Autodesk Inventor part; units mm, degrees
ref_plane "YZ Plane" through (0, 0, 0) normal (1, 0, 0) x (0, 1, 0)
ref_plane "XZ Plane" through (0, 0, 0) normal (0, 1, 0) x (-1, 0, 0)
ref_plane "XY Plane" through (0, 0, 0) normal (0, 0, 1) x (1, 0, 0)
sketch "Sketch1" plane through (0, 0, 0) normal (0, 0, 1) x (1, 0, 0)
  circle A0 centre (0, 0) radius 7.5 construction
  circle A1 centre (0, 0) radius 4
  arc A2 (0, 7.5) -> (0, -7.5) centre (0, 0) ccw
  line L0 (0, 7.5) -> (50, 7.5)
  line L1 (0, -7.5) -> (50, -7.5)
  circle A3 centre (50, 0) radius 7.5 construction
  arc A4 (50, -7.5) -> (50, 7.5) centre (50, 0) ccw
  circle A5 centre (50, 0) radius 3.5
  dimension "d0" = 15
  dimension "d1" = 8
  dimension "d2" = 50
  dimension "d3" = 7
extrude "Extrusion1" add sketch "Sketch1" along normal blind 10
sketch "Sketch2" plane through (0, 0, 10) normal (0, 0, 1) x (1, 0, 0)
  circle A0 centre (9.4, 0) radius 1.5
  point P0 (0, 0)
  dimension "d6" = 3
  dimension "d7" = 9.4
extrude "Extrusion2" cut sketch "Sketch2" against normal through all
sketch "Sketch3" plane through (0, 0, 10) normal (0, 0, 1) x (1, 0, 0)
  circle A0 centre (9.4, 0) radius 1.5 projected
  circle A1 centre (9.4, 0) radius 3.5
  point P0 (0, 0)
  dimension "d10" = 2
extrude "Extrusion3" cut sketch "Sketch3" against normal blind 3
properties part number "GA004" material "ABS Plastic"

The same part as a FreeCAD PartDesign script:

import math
import FreeCAD as App
import Part
import Sketcher

V = App.Vector
Q = App.Units.Quantity

doc = App.newDocument("Part")
body = doc.addObject("PartDesign::Body", "Body")

sketch1 = body.newObject("Sketcher::SketchObject", "Sketch")
sketch1.AttachmentSupport = (doc.getObject("XY_Plane"), [""])
sketch1.MapMode = "FlatFace"
sketch1.addGeometry(Part.LineSegment(V(50, 7.5, 0), V(0, 7.5, 0)), False)
sketch1.addGeometry(Part.ArcOfCircle(Part.Circle(V(0, 0, 0), V(0, 0, 1), 7.5), math.radians(90), math.radians(270)), False)
sketch1.addGeometry(Part.LineSegment(V(0, -7.5, 0), V(50, -7.5, 0)), False)
sketch1.addGeometry(Part.ArcOfCircle(Part.Circle(V(50, 0, 0), V(0, 0, 1), 7.5), math.radians(-90), math.radians(90)), False)
sketch1.addGeometry(Part.Circle(V(0, 0, 0), V(0, 0, 1), 4), False)
sketch1.addGeometry(Part.Circle(V(50, 0, 0), V(0, 0, 1), 3.5), False)
sketch1.addConstraint(Sketcher.Constraint("Tangent", 0, 2, 1, 1))
sketch1.addConstraint(Sketcher.Constraint("Tangent", 1, 2, 2, 1))
sketch1.addConstraint(Sketcher.Constraint("Tangent", 2, 2, 3, 1))
sketch1.addConstraint(Sketcher.Constraint("Tangent", 3, 2, 0, 1))
sketch1.addConstraint(Sketcher.Constraint("Horizontal", 0))
sketch1.addConstraint(Sketcher.Constraint("Horizontal", 2))
sketch1.addConstraint(Sketcher.Constraint("Coincident", 1, 3, -1, 1))
sketch1.addConstraint(Sketcher.Constraint("Coincident", 4, 3, -1, 1))
sketch1.addConstraint(Sketcher.Constraint("Coincident", 5, 3, 3, 3))
sketch1.addConstraint(Sketcher.Constraint("Diameter", 4, Q("8 mm")))
sketch1.addConstraint(Sketcher.Constraint("Diameter", 5, Q("7 mm")))
sketch1.addConstraint(Sketcher.Constraint("Radius", 1, Q("7.5 mm")))
sketch1.addConstraint(Sketcher.Constraint("DistanceX", 0, 2, 0, 1, Q("50 mm")))
pad1 = body.newObject("PartDesign::Pad", "Pad")
pad1.Profile = sketch1
pad1.Length = 10

sketch2 = body.newObject("Sketcher::SketchObject", "Sketch001")
sketch2.AttachmentSupport = (doc.getObject("XY_Plane"), [""])
sketch2.MapMode = "FlatFace"
sketch2.AttachmentOffset = App.Placement(V(0, 0, 10), App.Rotation())
sketch2.addGeometry(Part.Circle(V(9.4, 0, 0), V(0, 0, 1), 1.5), False)
sketch2.addConstraint(Sketcher.Constraint("PointOnObject", 0, 3, -1))
sketch2.addConstraint(Sketcher.Constraint("Diameter", 0, Q("3 mm")))
sketch2.addConstraint(Sketcher.Constraint("DistanceX", -1, 1, 0, 3, Q("9.4 mm")))
pocket1 = body.newObject("PartDesign::Pocket", "Pocket")
pocket1.Profile = sketch2
pocket1.Type = "ThroughAll"

sketch3 = body.newObject("Sketcher::SketchObject", "Sketch002")
sketch3.AttachmentSupport = (doc.getObject("XY_Plane"), [""])
sketch3.MapMode = "FlatFace"
sketch3.AttachmentOffset = App.Placement(V(0, 0, 10), App.Rotation())
sketch3.addGeometry(Part.Circle(V(9.4, 0, 0), V(0, 0, 1), 3.5), False)
sketch3.addGeometry(Part.Circle(V(9.4, 0, 0), V(0, 0, 1), 1.5), False)
sketch3.addConstraint(Sketcher.Constraint("Coincident", 1, 3, 0, 3))
sketch3.addConstraint(Sketcher.Constraint("PointOnObject", 0, 3, -1))
sketch3.addConstraint(Sketcher.Constraint("Diameter", 0, Q("7 mm")))
sketch3.addConstraint(Sketcher.Constraint("Diameter", 1, Q("3 mm")))
sketch3.addConstraint(Sketcher.Constraint("DistanceX", -1, 1, 0, 3, Q("9.4 mm")))
pocket2 = body.newObject("PartDesign::Pocket", "Pocket001")
pocket2.Profile = sketch3
pocket2.Length = 3

doc.recompute()
